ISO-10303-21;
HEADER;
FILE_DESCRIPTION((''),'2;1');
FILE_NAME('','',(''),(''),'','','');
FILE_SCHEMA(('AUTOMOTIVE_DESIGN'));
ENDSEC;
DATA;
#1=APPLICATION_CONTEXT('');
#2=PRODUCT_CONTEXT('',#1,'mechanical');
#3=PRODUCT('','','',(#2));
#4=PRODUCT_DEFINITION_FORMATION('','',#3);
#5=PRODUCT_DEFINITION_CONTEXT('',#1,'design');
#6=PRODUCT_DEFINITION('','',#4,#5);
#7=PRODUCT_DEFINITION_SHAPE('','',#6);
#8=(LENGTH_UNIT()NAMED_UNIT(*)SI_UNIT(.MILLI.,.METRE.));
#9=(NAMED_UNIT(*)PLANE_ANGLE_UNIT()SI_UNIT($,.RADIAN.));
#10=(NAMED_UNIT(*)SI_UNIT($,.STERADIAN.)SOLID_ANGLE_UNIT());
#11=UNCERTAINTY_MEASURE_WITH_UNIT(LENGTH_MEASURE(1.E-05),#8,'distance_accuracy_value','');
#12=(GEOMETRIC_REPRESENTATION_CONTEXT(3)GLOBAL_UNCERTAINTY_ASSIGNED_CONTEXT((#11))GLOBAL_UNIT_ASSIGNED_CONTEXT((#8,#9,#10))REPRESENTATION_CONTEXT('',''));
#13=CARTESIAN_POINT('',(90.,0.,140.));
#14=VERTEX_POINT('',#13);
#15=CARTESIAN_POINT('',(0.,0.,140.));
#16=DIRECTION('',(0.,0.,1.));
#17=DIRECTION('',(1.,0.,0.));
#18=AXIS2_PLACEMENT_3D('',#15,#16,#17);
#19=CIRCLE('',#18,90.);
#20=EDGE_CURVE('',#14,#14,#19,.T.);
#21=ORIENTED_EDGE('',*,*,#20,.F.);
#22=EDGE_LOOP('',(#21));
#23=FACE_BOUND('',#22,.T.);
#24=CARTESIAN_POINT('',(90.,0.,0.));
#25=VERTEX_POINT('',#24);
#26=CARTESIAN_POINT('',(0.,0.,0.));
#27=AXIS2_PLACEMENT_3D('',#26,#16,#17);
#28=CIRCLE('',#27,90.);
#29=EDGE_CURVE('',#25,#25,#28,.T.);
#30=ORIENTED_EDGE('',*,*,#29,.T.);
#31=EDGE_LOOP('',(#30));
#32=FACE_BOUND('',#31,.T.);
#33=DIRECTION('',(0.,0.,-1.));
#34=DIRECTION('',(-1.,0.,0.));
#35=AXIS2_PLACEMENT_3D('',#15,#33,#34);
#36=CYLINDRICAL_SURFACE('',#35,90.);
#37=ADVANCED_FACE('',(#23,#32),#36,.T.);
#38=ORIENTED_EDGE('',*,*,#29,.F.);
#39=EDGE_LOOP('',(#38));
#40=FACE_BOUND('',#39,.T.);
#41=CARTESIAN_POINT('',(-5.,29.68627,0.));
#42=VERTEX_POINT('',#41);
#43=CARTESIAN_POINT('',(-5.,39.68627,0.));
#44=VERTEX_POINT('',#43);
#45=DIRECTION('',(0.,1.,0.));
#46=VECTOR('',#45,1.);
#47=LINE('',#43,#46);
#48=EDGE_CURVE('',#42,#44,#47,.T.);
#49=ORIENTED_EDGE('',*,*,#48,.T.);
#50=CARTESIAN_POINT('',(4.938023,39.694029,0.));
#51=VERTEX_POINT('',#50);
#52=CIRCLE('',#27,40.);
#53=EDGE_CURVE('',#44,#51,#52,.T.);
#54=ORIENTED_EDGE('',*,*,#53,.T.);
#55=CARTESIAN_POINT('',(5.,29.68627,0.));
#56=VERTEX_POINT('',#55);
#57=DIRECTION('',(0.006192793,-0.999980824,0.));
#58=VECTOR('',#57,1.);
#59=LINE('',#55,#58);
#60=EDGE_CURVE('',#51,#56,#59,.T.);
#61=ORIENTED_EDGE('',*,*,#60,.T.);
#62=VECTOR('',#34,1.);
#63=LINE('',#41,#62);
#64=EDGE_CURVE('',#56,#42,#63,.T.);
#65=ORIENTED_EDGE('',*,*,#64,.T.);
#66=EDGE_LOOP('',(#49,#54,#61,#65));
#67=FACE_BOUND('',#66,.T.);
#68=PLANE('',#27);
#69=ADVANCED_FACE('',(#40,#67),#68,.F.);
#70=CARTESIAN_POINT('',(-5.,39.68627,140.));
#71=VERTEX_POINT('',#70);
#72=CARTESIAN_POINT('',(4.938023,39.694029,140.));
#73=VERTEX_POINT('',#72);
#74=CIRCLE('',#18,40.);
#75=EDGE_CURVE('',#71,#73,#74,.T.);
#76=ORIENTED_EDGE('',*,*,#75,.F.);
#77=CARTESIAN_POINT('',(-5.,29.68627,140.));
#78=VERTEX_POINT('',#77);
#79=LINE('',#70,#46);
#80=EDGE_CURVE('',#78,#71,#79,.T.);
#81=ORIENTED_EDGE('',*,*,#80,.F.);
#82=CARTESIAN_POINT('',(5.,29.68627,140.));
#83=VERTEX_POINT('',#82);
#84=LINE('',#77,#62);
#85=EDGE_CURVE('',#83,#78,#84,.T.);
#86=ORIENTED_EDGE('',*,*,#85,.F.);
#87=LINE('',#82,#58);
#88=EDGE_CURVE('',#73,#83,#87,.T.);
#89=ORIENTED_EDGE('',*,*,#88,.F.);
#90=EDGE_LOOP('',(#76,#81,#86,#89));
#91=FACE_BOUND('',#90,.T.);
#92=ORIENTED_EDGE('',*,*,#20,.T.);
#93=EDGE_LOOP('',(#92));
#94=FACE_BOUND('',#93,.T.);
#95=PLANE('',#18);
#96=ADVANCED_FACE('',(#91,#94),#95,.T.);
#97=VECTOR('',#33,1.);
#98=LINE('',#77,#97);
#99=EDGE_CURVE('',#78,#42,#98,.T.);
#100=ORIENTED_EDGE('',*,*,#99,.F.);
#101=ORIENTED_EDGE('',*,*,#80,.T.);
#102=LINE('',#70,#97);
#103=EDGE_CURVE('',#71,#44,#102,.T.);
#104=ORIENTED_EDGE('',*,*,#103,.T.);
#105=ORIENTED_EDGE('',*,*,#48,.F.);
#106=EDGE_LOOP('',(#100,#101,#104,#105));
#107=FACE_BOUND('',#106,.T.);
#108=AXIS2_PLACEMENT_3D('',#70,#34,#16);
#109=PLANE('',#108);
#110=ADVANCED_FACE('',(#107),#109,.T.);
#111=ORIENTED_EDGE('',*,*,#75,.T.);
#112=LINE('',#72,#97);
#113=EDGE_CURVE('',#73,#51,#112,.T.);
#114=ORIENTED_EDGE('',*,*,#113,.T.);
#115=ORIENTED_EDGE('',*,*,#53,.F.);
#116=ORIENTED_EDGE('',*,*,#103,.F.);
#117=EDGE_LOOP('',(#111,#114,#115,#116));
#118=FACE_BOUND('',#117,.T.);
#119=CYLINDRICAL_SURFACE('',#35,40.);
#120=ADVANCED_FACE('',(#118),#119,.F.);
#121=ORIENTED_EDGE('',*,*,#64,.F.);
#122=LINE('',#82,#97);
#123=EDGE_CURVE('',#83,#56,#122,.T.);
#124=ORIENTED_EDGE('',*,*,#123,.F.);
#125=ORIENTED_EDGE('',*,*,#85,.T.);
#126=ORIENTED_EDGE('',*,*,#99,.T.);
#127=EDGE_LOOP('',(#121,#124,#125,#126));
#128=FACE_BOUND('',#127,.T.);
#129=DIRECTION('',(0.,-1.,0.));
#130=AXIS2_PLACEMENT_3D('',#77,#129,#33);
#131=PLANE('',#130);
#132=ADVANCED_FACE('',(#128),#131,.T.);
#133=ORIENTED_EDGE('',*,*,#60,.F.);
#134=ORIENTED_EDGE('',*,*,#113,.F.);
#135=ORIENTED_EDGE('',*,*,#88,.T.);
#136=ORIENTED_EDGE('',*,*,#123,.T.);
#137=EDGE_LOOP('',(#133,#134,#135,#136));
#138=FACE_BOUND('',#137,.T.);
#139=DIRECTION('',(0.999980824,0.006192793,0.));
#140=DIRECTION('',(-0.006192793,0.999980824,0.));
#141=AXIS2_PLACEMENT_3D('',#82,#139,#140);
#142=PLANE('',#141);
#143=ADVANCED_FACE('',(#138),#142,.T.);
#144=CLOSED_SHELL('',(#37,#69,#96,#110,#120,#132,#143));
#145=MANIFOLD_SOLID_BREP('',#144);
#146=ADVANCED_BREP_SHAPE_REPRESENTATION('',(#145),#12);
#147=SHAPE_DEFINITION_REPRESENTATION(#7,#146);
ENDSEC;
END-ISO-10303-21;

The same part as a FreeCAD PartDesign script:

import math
import FreeCAD as App
import Part
import Sketcher

V = App.Vector

doc = App.newDocument("Part")
params = doc.addObject("Spreadsheet::Sheet", "Params")
for row, (alias, value) in enumerate([
    ("sketch1_diameter", "180 mm"),
    ("sketch1_radius", "40 mm"),
    ("sketch1_width", "10 mm"),
    ("pad1_length", "140 mm"),
], start=1):
    params.set(f"A{row}", alias)
    params.set(f"B{row}", "=" + value)
    params.setAlias(f"B{row}", alias)

body = doc.addObject("PartDesign::Body", "Body")

sketch1 = body.newObject("Sketcher::SketchObject", "Sketch")
sketch1.AttachmentSupport = (doc.getObject("XY_Plane"), [""])
sketch1.MapMode = "FlatFace"
sketch1.addGeometry([
    Part.Circle(V(0, 0, 0), V(0, 0, 1), 90),
    Part.ArcOfCircle(Part.Circle(V(0, 0, 0), V(0, 0, 1), 40), math.radians(97), math.radians(443)),
    Part.LineSegment(V(-5, 40, 0), V(-5, 30, 0)),
    Part.LineSegment(V(-5, 30, 0), V(5, 30, 0)),
    Part.LineSegment(V(5, 30, 0), V(5, 40, 0)),
], False)
sketch1.addConstraint([
    Sketcher.Constraint("Coincident", 1, 1, 2, 1),
    Sketcher.Constraint("Coincident", 2, 2, 3, 1),
    Sketcher.Constraint("Coincident", 3, 2, 4, 1),
    Sketcher.Constraint("Coincident", 4, 2, 1, 2),
    Sketcher.Constraint("Vertical", 2),
    Sketcher.Constraint("Horizontal", 3),
    Sketcher.Constraint("Coincident", 0, 3, -1, 1),
    Sketcher.Constraint("Coincident", 1, 3, -1, 1),
    Sketcher.Constraint("Equal", 3, 2),
    Sketcher.Constraint("Diameter", 0, 180.0),
    Sketcher.Constraint("Radius", 1, 40.0),
    Sketcher.Constraint("DistanceX", 3, 1, 3, 2, 10.0),
    Sketcher.Constraint("DistanceX", 1, 1, -1, 1, 5.0),
    Sketcher.Constraint("Distance", 4, 10.007951),
])
sketch1.setExpression("Constraints[9]", "Params.sketch1_diameter")
sketch1.setExpression("Constraints[10]", "Params.sketch1_radius")
sketch1.setExpression("Constraints[11]", "Params.sketch1_width")
pad1 = body.newObject("PartDesign::Pad", "Pad")
pad1.Profile = sketch1
pad1.setExpression("Length", "Params.pad1_length")

doc.recompute()
